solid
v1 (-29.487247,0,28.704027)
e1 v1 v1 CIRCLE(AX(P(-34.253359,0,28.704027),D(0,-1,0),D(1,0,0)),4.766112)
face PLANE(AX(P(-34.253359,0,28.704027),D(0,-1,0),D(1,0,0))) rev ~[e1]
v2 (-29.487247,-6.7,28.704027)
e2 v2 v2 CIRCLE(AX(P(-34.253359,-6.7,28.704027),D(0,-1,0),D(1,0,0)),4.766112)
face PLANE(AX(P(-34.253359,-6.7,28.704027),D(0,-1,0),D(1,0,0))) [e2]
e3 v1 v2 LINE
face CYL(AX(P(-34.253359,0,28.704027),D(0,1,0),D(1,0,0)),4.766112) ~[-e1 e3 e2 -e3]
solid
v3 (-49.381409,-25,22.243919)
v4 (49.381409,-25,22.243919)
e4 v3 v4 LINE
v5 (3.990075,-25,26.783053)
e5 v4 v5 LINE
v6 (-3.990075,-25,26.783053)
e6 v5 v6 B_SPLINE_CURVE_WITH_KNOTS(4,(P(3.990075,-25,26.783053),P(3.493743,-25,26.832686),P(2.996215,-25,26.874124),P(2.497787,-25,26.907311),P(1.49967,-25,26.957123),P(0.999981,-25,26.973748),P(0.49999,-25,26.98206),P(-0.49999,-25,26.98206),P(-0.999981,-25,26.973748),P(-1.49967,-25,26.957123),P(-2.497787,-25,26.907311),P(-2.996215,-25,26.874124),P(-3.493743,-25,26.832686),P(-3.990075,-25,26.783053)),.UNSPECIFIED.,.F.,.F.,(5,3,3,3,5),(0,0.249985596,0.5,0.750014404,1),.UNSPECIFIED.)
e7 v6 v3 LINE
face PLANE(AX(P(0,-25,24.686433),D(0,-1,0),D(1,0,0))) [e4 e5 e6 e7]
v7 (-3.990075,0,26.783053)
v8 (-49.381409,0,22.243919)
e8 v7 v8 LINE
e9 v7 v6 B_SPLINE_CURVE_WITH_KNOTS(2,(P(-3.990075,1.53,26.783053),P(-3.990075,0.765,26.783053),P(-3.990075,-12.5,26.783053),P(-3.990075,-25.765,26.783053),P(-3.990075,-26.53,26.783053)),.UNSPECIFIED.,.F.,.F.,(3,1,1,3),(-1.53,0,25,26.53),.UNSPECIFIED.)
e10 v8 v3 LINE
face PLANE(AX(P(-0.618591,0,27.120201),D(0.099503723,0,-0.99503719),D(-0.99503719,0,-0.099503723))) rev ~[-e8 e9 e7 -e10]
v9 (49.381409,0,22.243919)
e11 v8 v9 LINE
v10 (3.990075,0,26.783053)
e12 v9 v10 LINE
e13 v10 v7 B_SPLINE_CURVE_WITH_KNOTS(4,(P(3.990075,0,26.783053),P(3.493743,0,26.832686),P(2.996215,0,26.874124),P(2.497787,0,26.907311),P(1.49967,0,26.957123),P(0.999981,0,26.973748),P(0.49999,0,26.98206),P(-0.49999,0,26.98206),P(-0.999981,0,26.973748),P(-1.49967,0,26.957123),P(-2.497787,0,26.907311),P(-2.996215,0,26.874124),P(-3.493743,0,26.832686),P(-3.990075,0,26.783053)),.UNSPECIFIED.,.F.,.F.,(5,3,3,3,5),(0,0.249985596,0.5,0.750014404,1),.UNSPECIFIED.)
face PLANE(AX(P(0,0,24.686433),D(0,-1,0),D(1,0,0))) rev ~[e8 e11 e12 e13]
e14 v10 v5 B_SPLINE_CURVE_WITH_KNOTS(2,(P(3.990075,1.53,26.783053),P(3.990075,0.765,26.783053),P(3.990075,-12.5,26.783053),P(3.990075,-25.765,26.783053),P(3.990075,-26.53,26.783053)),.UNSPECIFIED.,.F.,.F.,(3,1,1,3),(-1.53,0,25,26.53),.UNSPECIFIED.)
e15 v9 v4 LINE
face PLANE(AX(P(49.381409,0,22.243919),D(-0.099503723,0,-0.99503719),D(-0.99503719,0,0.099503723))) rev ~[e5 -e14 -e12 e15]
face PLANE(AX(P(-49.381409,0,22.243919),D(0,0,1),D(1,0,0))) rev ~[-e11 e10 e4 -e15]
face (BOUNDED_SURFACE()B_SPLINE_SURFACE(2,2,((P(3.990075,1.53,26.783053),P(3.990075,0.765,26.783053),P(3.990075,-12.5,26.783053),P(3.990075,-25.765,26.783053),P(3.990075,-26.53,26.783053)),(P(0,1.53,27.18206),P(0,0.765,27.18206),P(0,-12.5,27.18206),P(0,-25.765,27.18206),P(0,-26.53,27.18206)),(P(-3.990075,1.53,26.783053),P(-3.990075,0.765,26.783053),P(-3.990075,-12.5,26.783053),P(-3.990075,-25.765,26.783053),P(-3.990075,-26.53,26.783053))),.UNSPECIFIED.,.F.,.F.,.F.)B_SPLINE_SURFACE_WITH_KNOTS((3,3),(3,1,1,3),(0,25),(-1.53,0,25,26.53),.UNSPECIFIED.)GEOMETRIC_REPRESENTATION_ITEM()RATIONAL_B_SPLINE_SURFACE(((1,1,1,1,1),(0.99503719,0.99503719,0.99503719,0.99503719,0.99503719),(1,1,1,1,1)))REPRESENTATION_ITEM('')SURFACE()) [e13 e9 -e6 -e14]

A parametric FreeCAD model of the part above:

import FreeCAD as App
import Part
import Sketcher
from FreeCAD import Vector


def edges_at(feature, points):
    """Names of the edges that pass closest to the given points."""
    edges = feature.Shape.Edges
    near = lambda p: min(range(len(edges)), key=lambda i: edges[i].distToShape(Part.Vertex(*p))[0])
    return sorted({f"Edge{near(p) + 1}" for p in points})

doc = App.newDocument("Part")
body = doc.addObject("PartDesign::Body", "Body")

sketch1 = body.newObject("Sketcher::SketchObject", "Sketch")
sketch1.AttachmentSupport = (doc.getObject("XZ_Plane"), [""])
sketch1.MapMode = "FlatFace"
sketch1.addGeometry(Part.LineSegment(Vector(49.381409, 22.243919, 0), Vector(0.618591, 27.120201, 0)), False)
sketch1.addGeometry(Part.LineSegment(Vector(0.618591, 27.120201, 0), Vector(0, 27.18206, 0)), False)
sketch1.addGeometry(Part.LineSegment(Vector(0, 27.18206, 0), Vector(-0.618591, 27.120201, 0)), False)
sketch1.addGeometry(Part.LineSegment(Vector(-0.618591, 27.120201, 0), Vector(-49.381409, 22.243919, 0)), False)
sketch1.addGeometry(Part.LineSegment(Vector(-49.381409, 22.243919, 0), Vector(49.381409, 22.243919, 0)), False)
sketch1.addConstraint(Sketcher.Constraint("Coincident", 0, 2, 1, 1))
sketch1.addConstraint(Sketcher.Constraint("Coincident", 1, 2, 2, 1))
sketch1.addConstraint(Sketcher.Constraint("Coincident", 2, 2, 3, 1))
sketch1.addConstraint(Sketcher.Constraint("Coincident", 3, 2, 4, 1))
sketch1.addConstraint(Sketcher.Constraint("Coincident", 4, 2, 0, 1))
sketch1.addConstraint(Sketcher.Constraint("Horizontal", 4))
sketch1.addConstraint(Sketcher.Constraint("Symmetric", 0, 2, 2, 2, -2))
sketch1.addConstraint(Sketcher.Constraint("PointOnObject", 1, 2, -2))
sketch1.addConstraint(Sketcher.Constraint("Parallel", 0, 1))
sketch1.addConstraint(Sketcher.Constraint("Equal", 0, 3))
sketch1.addConstraint(Sketcher.Constraint("DistanceX", 3, 2, 0, 2, 50.0))
sketch1.addConstraint(Sketcher.Constraint("DistanceY", -1, 1, 0, 2, 27.120201))
sketch1.addConstraint(Sketcher.Constraint("DistanceX", 4, 1, 4, 2, 98.762818))
sketch1.addConstraint(Sketcher.Constraint("DistanceY", -1, 1, 1, 2, 27.18206))
pad1 = body.newObject("PartDesign::Pad", "Pad")
pad1.Profile = sketch1
pad1.Length = 25
doc.recompute()

fillet = body.newObject("PartDesign::Fillet", "Fillet")
fillet.Base = (pad1, edges_at(pad1, [(0, -12.5, 27.182)]))
fillet.Radius = 40.099751
body2 = doc.addObject("PartDesign::Body", "Body001")

sketch2 = body2.newObject("Sketcher::SketchObject", "Sketch001")
sketch2.AttachmentSupport = (doc.getObject("XZ_Plane001"), [""])
sketch2.MapMode = "FlatFace"
sketch2.addGeometry(Part.Circle(Vector(-34.253359, 28.704027, 0), Vector(0, 0, 1), 4.766112), False)
sketch2.addConstraint(Sketcher.Constraint("Diameter", 0, 9.532224))
sketch2.addConstraint(Sketcher.Constraint("DistanceX", 0, 3, -1, 1, 34.253359))
sketch2.addConstraint(Sketcher.Constraint("DistanceY", -1, 1, 0, 3, 28.704027))
pad2 = body2.newObject("PartDesign::Pad", "Pad001")
pad2.Profile = sketch2
pad2.Length = 6.7

doc.recompute()
